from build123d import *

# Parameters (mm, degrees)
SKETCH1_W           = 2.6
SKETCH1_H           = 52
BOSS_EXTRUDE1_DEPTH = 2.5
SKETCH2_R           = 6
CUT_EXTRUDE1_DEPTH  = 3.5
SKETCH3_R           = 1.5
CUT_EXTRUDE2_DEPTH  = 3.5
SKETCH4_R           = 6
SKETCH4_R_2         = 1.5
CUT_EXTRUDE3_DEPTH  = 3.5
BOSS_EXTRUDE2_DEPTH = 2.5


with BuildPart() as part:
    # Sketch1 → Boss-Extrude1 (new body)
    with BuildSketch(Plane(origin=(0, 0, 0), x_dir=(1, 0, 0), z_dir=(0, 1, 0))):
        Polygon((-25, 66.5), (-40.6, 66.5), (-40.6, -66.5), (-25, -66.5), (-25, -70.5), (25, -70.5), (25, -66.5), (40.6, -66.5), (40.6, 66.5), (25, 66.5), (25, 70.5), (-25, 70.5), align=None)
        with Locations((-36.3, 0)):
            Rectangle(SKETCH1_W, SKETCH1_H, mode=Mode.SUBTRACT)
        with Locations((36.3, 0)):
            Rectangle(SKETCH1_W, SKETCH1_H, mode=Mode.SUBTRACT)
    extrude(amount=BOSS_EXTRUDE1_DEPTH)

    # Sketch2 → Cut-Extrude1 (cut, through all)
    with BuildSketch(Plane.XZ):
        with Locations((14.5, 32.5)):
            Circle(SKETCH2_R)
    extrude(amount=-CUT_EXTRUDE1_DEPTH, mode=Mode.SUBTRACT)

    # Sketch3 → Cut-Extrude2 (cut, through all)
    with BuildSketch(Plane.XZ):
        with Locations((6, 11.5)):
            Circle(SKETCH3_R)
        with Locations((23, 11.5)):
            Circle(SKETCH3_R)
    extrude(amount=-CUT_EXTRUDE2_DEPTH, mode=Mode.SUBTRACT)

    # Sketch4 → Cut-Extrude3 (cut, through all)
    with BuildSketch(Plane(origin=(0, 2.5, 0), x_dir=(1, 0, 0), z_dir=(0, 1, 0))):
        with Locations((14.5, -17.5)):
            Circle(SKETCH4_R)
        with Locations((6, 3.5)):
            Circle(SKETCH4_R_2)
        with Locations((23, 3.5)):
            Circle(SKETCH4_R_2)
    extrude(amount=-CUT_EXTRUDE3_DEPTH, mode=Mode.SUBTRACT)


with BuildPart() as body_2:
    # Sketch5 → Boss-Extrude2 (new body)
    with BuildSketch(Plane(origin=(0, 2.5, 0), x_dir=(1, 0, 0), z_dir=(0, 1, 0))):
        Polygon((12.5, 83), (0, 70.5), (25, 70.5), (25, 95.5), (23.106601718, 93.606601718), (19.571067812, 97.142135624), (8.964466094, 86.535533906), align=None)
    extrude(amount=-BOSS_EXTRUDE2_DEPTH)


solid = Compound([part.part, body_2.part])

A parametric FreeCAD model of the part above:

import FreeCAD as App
import Part
import Sketcher


def add_polygon(sketch, points):
    """Adds a closed chain of lines whose ends are joined by coincident constraints."""
    first, n = sketch.GeometryCount, len(points)
    for a, b in zip(points, points[1:] + points[:1]):
        sketch.addGeometry(Part.LineSegment(App.Vector(*a, 0), App.Vector(*b, 0)), False)
    for i in range(n):
        sketch.addConstraint(Sketcher.Constraint("Coincident", first + i, 2, first + (i + 1) % n, 1))

doc = App.newDocument("Part")
body = doc.addObject("PartDesign::Body", "Body")

# Sketch on XZ plane
sketch1 = body.newObject("Sketcher::SketchObject", "Sketch")
sketch1.AttachmentSupport = (doc.getObject("XZ_Plane"), [""])
sketch1.MapMode = "FlatFace"
add_polygon(sketch1, [(-25, -66.5), (-40.6, -66.5), (-40.6, 66.5), (-25, 66.5), (-25, 70.5), (25, 70.5), (25, 66.5), (40.6, 66.5), (40.6, -66.5), (25, -66.5), (25, -70.5), (-25, -70.5)])  # lines 0-11
add_polygon(sketch1, [(-35, 26), (-37.6, 26), (-37.6, -26), (-35, -26)])  # lines 12-15
add_polygon(sketch1, [(37.6, 26), (35, 26), (35, -26), (37.6, -26)])  # lines 16-19
sketch1.addConstraint([
    Sketcher.Constraint("Horizontal", 0),
    Sketcher.Constraint("Vertical", 1),
    Sketcher.Constraint("Horizontal", 2),
    Sketcher.Constraint("Vertical", 3),
    Sketcher.Constraint("Horizontal", 4),
    Sketcher.Constraint("Vertical", 5),
    Sketcher.Constraint("Horizontal", 6),
    Sketcher.Constraint("Vertical", 7),
    Sketcher.Constraint("Horizontal", 8),
    Sketcher.Constraint("Vertical", 9),
    Sketcher.Constraint("Horizontal", 10),
    Sketcher.Constraint("Vertical", 11),
    Sketcher.Constraint("Horizontal", 12),
    Sketcher.Constraint("Vertical", 13),
    Sketcher.Constraint("Horizontal", 14),
    Sketcher.Constraint("Vertical", 15),
    Sketcher.Constraint("Horizontal", 16),
    Sketcher.Constraint("Vertical", 17),
    Sketcher.Constraint("Horizontal", 18),
    Sketcher.Constraint("Vertical", 19),
    Sketcher.Constraint("Symmetric", 0, 2, 6, 2, -1, 1),
    Sketcher.Constraint("Symmetric", 2, 2, 8, 2, -1, 1),
    Sketcher.Constraint("Symmetric", 4, 2, 10, 2, -1, 1),
    Sketcher.Constraint("Symmetric", 14, 2, 16, 2, -1, 1),
    Sketcher.Constraint("Symmetric", 12, 2, 18, 2, -1, 1),
    Sketcher.Constraint("Symmetric", 2, 2, 5, 2, -2),
    Sketcher.Constraint("Horizontal", 15, 2, 16, 2),
    Sketcher.Constraint("DistanceX", 4, 1, 4, 2, 50.0),
    Sketcher.Constraint("DistanceY", 1, 1, 1, 2, 133.0),
    Sketcher.Constraint("DistanceY", 3, 1, 3, 2, 4.0),
    Sketcher.Constraint("DistanceY", 13, 2, 13, 1, 52.0),
    Sketcher.Constraint("DistanceX", 0, 2, 0, 1, 15.6),
    Sketcher.Constraint("DistanceX", 12, 2, 12, 1, 2.6),
    Sketcher.Constraint("DistanceX", 14, 2, -1, 1, 35.0),
])
pad1 = body.newObject("PartDesign::Pad", "Pad")
pad1.Profile = sketch1
pad1.Length = 2.5
pad1.Reversed = True

# Sketch on XZ plane
sketch2 = body.newObject("Sketcher::SketchObject", "Sketch001")
sketch2.AttachmentSupport = (doc.getObject("XZ_Plane"), [""])
sketch2.MapMode = "FlatFace"
sketch2.addGeometry(Part.Circle(App.Vector(14, 32, 0), App.Vector(0, 0, 1), 6), False)
sketch2.addConstraint([
    Sketcher.Constraint("Diameter", 0, 12.0),
    Sketcher.Constraint("DistanceX", -1, 1, 0, 3, 14.5),
    Sketcher.Constraint("DistanceY", -1, 1, 0, 3, 32.5),
])
pocket1 = body.newObject("PartDesign::Pocket", "Pocket")
pocket1.Profile = sketch2
pocket1.Type = "ThroughAll"

# Sketch on XZ plane
sketch3 = body.newObject("Sketcher::SketchObject", "Sketch002")
sketch3.AttachmentSupport = (doc.getObject("XZ_Plane"), [""])
sketch3.MapMode = "FlatFace"
sketch3.addGeometry([
    Part.Circle(App.Vector(6, 11.5, 0), App.Vector(0, 0, 1), 1.5),
    Part.Circle(App.Vector(23, 11.5, 0), App.Vector(0, 0, 1), 1.5),
], False)
sketch3.addConstraint([
    Sketcher.Constraint("Equal", 0, 1),
    Sketcher.Constraint("Horizontal", 0, 3, 1, 3),
    Sketcher.Constraint("Diameter", 0, 3.0),
    Sketcher.Constraint("DistanceX", -1, 1, 0, 3, 6.0),
    Sketcher.Constraint("DistanceX", -1, 1, 1, 3, 23.0),
    Sketcher.Constraint("DistanceY", -1, 1, 0, 3, 11.5),
])
pocket2 = body.newObject("PartDesign::Pocket", "Pocket001")
pocket2.Profile = sketch3
pocket2.Type = "ThroughAll"

# Sketch on XZ plane
sketch4 = body.newObject("Sketcher::SketchObject", "Sketch003")
sketch4.AttachmentSupport = (doc.getObject("XZ_Plane"), [""])
sketch4.MapMode = "FlatFace"
sketch4.AttachmentOffset = App.Placement(App.Vector(0, 0, -2.5), App.Rotation())
sketch4.addGeometry([
    Part.Circle(App.Vector(14.5, 17.5, 0), App.Vector(0, 0, 1), 6),
    Part.Circle(App.Vector(6, -3.5, 0), App.Vector(0, 0, 1), 1.5),
    Part.Circle(App.Vector(23, -3.5, 0), App.Vector(0, 0, 1), 1.5),
], False)
sketch4.addConstraint([
    Sketcher.Constraint("Equal", 1, 2),
    Sketcher.Constraint("Horizontal", 1, 3, 2, 3),
    Sketcher.Constraint("Diameter", 0, 12.0),
    Sketcher.Constraint("Diameter", 1, 3.0),
    Sketcher.Constraint("DistanceX", -1, 1, 1, 3, 6.0),
    Sketcher.Constraint("DistanceX", -1, 1, 2, 3, 23.0),
    Sketcher.Constraint("DistanceY", 1, 3, 0, 3, 21.0),
    Sketcher.Constraint("DistanceX", -1, 1, 0, 3, 14.5),
    Sketcher.Constraint("DistanceY", -1, 1, 0, 3, 17.5),
])
pocket3 = body.newObject("PartDesign::Pocket", "Pocket002")
pocket3.Profile = sketch4
pocket3.Type = "ThroughAll"
pocket3.Reversed = True
body2 = doc.addObject("PartDesign::Body", "Body001")

# Sketch on XZ plane
sketch5 = body2.newObject("Sketcher::SketchObject", "Sketch004")
sketch5.AttachmentSupport = (doc.getObject("XZ_Plane001"), [""])
sketch5.MapMode = "FlatFace"
sketch5.AttachmentOffset = App.Placement(App.Vector(0, 0, -2.5), App.Rotation())
add_polygon(sketch5, [(12.5, -83), (0, -70.5), (25, -70.5), (25, -95.5), (23.1, -93.6), (19.6, -97.1), (9, -86.5)])  # lines 0-6
sketch5.addConstraint([
    Sketcher.Constraint("Horizontal", 1),
    Sketcher.Constraint("Vertical", 2),
    Sketcher.Constraint("PointOnObject", 0, 2, -2),
    Sketcher.Constraint("Parallel", 0, 3),
    Sketcher.Constraint("Perpendicular", 3, 4),
    Sketcher.Constraint("Perpendicular", 4, 5),
    Sketcher.Constraint("Perpendicular", 5, 6),
    Sketcher.Constraint("Equal", 1, 2),
    Sketcher.Constraint("Equal", 4, 6),
    Sketcher.Constraint("DistanceX", 1, 1, 1, 2, 25.0),
    Sketcher.Constraint("Distance", 4, 5.0),
    Sketcher.Constraint("Distance", 5, 15.0),
    Sketcher.Constraint("DistanceY", 6, 2, -1, 1, 83.0),
    Sketcher.Constraint("DistanceY", 0, 2, -1, 1, 70.5),
])
pad2 = body2.newObject("PartDesign::Pad", "Pad001")
pad2.Profile = sketch5
pad2.Length = 2.5

doc.recompute()
